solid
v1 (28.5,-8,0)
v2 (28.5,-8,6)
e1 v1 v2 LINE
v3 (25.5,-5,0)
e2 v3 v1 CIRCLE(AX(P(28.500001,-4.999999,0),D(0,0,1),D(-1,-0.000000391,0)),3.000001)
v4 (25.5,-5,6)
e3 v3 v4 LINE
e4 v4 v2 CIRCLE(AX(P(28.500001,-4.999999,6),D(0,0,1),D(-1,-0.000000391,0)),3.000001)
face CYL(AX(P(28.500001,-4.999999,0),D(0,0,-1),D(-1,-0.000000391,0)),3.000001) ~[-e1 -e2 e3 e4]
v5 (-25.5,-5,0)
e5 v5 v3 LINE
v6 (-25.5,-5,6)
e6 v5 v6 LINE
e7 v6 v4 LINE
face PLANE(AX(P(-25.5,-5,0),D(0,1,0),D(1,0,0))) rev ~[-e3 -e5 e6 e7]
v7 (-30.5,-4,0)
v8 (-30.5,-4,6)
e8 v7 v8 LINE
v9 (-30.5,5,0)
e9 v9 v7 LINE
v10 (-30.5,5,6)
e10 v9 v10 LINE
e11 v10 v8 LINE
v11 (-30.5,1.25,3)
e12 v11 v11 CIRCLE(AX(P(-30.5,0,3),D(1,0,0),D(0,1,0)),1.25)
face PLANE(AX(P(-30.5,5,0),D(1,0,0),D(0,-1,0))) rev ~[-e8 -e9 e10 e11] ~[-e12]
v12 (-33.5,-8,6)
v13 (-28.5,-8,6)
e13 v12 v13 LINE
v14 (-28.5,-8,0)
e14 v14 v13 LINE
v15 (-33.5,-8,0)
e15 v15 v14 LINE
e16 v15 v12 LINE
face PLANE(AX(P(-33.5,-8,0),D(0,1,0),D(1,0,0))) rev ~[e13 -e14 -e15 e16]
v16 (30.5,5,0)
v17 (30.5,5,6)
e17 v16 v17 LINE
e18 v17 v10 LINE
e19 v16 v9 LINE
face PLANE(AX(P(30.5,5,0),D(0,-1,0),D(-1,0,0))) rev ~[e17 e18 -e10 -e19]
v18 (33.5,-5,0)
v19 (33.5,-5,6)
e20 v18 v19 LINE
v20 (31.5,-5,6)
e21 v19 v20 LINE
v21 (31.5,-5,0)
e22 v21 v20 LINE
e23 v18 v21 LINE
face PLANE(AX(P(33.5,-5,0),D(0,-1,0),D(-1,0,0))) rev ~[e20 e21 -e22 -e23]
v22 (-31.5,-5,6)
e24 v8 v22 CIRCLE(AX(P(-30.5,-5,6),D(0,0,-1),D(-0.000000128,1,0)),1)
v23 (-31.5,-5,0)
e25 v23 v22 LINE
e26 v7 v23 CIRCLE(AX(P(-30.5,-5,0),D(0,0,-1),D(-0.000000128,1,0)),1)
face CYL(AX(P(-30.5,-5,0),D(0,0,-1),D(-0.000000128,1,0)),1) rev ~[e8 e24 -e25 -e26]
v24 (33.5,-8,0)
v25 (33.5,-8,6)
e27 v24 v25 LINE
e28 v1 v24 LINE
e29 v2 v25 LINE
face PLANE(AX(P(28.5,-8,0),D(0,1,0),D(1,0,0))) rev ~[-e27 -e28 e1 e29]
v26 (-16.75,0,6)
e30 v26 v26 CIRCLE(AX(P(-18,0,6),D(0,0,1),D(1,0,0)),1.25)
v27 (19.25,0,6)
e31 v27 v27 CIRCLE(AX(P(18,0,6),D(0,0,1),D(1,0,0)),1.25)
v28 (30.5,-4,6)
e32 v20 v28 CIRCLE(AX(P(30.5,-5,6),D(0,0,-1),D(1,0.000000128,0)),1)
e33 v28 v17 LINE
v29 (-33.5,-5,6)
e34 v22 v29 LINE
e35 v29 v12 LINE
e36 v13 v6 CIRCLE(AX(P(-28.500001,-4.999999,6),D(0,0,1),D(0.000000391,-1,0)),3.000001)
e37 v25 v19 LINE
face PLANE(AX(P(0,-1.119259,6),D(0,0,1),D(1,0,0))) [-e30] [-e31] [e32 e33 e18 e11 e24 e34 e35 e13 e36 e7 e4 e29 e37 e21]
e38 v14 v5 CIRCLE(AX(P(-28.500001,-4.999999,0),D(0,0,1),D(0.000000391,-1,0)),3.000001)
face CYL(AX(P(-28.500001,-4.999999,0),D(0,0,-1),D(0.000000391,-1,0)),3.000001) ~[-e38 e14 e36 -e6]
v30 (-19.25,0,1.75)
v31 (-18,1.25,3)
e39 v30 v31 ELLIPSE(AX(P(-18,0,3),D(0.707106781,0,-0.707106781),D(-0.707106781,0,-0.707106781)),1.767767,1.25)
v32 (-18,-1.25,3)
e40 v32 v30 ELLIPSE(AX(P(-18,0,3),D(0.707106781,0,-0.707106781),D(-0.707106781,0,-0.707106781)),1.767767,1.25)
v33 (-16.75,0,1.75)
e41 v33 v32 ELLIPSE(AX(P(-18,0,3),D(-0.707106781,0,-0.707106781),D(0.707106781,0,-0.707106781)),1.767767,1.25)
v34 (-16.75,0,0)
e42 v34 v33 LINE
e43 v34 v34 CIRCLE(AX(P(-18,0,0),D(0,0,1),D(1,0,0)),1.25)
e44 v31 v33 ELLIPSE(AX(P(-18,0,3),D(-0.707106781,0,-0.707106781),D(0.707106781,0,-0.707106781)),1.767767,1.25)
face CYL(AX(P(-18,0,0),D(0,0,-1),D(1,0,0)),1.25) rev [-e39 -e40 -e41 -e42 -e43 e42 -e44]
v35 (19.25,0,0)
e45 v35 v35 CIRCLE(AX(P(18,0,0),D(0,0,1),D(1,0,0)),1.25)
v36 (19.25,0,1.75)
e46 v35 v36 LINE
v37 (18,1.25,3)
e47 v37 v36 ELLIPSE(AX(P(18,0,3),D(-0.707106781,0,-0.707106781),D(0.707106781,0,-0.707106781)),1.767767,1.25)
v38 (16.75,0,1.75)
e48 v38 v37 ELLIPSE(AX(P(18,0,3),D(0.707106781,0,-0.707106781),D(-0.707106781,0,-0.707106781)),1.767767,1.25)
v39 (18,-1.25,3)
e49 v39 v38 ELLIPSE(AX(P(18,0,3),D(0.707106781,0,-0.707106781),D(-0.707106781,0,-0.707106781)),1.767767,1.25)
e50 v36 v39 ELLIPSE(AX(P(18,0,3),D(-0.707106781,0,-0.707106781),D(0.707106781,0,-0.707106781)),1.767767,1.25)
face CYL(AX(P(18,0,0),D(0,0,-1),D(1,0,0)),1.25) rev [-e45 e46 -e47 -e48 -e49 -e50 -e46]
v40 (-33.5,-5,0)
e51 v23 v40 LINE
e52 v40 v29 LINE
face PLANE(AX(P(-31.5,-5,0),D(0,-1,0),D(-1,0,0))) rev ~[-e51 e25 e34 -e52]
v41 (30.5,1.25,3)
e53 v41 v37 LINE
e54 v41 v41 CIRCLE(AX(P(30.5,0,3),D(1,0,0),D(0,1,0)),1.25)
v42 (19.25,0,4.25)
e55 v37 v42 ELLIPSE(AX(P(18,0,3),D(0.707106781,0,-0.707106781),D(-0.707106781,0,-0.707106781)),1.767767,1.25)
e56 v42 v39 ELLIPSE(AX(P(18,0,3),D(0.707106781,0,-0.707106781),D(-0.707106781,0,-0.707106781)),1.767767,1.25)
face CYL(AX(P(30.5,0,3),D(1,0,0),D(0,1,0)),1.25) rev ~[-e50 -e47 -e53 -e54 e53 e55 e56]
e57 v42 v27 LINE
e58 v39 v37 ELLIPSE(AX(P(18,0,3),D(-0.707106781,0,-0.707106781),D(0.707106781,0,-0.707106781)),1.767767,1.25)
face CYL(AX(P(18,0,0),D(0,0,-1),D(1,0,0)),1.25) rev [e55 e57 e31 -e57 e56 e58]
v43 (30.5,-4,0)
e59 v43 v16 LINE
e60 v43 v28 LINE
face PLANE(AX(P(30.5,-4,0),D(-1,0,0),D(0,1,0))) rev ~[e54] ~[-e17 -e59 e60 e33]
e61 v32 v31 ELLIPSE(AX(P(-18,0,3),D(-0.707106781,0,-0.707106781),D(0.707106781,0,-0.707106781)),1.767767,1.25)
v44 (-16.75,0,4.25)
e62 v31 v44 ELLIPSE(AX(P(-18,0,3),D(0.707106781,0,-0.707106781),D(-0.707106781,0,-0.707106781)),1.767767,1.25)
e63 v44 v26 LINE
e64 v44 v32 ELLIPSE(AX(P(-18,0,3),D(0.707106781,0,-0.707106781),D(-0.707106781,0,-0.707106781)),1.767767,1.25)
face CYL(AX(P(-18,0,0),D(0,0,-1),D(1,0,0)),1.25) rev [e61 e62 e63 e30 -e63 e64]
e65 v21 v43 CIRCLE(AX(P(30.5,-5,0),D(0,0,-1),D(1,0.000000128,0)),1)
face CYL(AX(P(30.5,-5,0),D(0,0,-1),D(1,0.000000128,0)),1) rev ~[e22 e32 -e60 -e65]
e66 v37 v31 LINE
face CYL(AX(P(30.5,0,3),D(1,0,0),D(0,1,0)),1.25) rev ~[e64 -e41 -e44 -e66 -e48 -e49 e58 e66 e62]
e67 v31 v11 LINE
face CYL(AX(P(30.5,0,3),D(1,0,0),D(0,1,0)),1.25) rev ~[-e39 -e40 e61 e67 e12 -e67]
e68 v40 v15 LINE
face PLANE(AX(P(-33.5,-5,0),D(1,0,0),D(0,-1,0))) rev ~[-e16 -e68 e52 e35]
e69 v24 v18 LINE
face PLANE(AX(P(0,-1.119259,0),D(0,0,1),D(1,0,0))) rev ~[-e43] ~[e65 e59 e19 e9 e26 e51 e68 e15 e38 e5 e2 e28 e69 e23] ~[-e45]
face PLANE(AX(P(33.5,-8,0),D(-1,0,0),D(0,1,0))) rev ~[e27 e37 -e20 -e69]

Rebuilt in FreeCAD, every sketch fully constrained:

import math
import FreeCAD as App
import Part
import Sketcher

V = App.Vector
Q = App.Units.Quantity

doc = App.newDocument("Part")
body = doc.addObject("PartDesign::Body", "Body")

sketch1 = doc.addObject("Sketcher::SketchObject", "Sketch")
body.addObject(sketch1)
sketch1.AttachmentSupport = (doc.XY_Plane, [""])
sketch1.MapMode = "FlatFace"
sketch1.addGeometry([
    Part.LineSegment(V(30.5, -4, 0), V(30.5, 5, 0)),
    Part.LineSegment(V(30.5, 5, 0), V(-30.5, 5, 0)),
    Part.LineSegment(V(-30.5, 5, 0), V(-30.5, -4, 0)),
    Part.ArcOfCircle(Part.Circle(V(-30.5, -5, 0), V(0, 0, 1), 1), math.radians(180), math.radians(450)),
    Part.LineSegment(V(-31.5, -5, 0), V(-33.5, -5, 0)),
    Part.LineSegment(V(-33.5, -5, 0), V(-33.5, -8, 0)),
    Part.LineSegment(V(-33.5, -8, 0), V(-28.5, -8, 0)),
    Part.ArcOfCircle(Part.Circle(V(-28.5, -5, 0), V(0, 0, 1), 3), math.radians(-90), math.radians(0)),
    Part.LineSegment(V(-25.5, -5, 0), V(25.5, -5, 0)),
    Part.ArcOfCircle(Part.Circle(V(28.5, -5, 0), V(0, 0, 1), 3), math.radians(-180), math.radians(-90)),
    Part.LineSegment(V(28.5, -8, 0), V(33.5, -8, 0)),
    Part.LineSegment(V(33.5, -8, 0), V(33.5, -5, 0)),
    Part.LineSegment(V(33.5, -5, 0), V(31.5, -5, 0)),
    Part.ArcOfCircle(Part.Circle(V(30.5, -5, 0), V(0, 0, 1), 1), math.radians(90), math.radians(360)),
    Part.Circle(V(-18, 0, 0), V(0, 0, 1), 1.2),
    Part.Circle(V(18, 0, 0), V(0, 0, 1), 1.2),
], False)
sketch1.addConstraint([
    Sketcher.Constraint("Coincident", 0, 2, 1, 1),
    Sketcher.Constraint("Coincident", 1, 2, 2, 1),
    Sketcher.Constraint("Coincident", 2, 2, 3, 2),
    Sketcher.Constraint("Coincident", 3, 1, 4, 1),
    Sketcher.Constraint("Coincident", 4, 2, 5, 1),
    Sketcher.Constraint("Coincident", 5, 2, 6, 1),
    Sketcher.Constraint("Tangent", 6, 2, 7, 1),
    Sketcher.Constraint("Coincident", 7, 2, 8, 1),
    Sketcher.Constraint("Coincident", 8, 2, 9, 1),
    Sketcher.Constraint("Tangent", 9, 2, 10, 1),
    Sketcher.Constraint("Coincident", 10, 2, 11, 1),
    Sketcher.Constraint("Coincident", 11, 2, 12, 1),
    Sketcher.Constraint("Coincident", 12, 2, 13, 2),
    Sketcher.Constraint("Coincident", 13, 1, 0, 1),
    Sketcher.Constraint("Vertical", 0),
    Sketcher.Constraint("Horizontal", 1),
    Sketcher.Constraint("Vertical", 2),
    Sketcher.Constraint("Horizontal", 4),
    Sketcher.Constraint("Vertical", 5),
    Sketcher.Constraint("Horizontal", 6),
    Sketcher.Constraint("Horizontal", 8),
    Sketcher.Constraint("Horizontal", 10),
    Sketcher.Constraint("Vertical", 11),
    Sketcher.Constraint("Horizontal", 12),
    Sketcher.Constraint("Equal", 7, 9),
    Sketcher.Constraint("Equal", 3, 13),
    Sketcher.Constraint("Equal", 14, 15),
    Sketcher.Constraint("Symmetric", 14, 3, 15, 3, -1, 1),
    Sketcher.Constraint("Symmetric", 7, 3, 9, 3, -2),
    Sketcher.Constraint("Symmetric", 3, 3, 13, 3, -2),
    Sketcher.Constraint("Symmetric", 4, 2, 11, 2, -2),
    Sketcher.Constraint("PointOnObject", 14, 3, -1),
    Sketcher.Constraint("Horizontal", 3, 3, 7, 3),
    Sketcher.Constraint("Horizontal", 13, 3, 3, 1),
    Sketcher.Constraint("Horizontal", 4, 2, 7, 2),
    Sketcher.Constraint("Vertical", 13, 3, 0, 2),
    Sketcher.Constraint("Vertical", 3, 3, 1, 2),
    Sketcher.Constraint("Radius", 3, Q("1 mm")),
    Sketcher.Constraint("Radius", 7, Q("3.000001 mm")),
    Sketcher.Constraint("Diameter", 14, Q("2.5 mm")),
    Sketcher.Constraint("DistanceX", 1, 2, 1, 1, Q("61 mm")),
    Sketcher.Constraint("DistanceX", 4, 2, 4, 1, Q("2 mm")),
    Sketcher.Constraint("DistanceX", 6, 1, 6, 2, Q("5 mm")),
    Sketcher.Constraint("DistanceY", 0, 1, 0, 2, Q("9 mm")),
    Sketcher.Constraint("DistanceY", 3, 3, -1, 1, Q("5 mm")),
    Sketcher.Constraint("DistanceX", 14, 3, -1, 1, Q("18 mm")),
])
pad1 = doc.addObject("PartDesign::Pad", "Pad")
body.addObject(pad1)
pad1.Profile = sketch1
pad1.Length = 6

sketch2 = doc.addObject("Sketcher::SketchObject", "Sketch001")
body.addObject(sketch2)
sketch2.AttachmentSupport = (doc.YZ_Plane, [""])
sketch2.MapMode = "FlatFace"
sketch2.AttachmentOffset = App.Placement(V(0, 0, 30.5), App.Rotation())
sketch2.addGeometry(Part.Circle(V(0, 3, 0), V(0, 0, 1), 1.2), False)
sketch2.addConstraint([
    Sketcher.Constraint("PointOnObject", 0, 3, -2),
    Sketcher.Constraint("Diameter", 0, Q("2.5 mm")),
    Sketcher.Constraint("DistanceY", -1, 1, 0, 3, Q("3 mm")),
])
pocket1 = doc.addObject("PartDesign::Pocket", "Pocket")
body.addObject(pocket1)
pocket1.Profile = sketch2
pocket1.Type = "ThroughAll"

doc.recompute()
